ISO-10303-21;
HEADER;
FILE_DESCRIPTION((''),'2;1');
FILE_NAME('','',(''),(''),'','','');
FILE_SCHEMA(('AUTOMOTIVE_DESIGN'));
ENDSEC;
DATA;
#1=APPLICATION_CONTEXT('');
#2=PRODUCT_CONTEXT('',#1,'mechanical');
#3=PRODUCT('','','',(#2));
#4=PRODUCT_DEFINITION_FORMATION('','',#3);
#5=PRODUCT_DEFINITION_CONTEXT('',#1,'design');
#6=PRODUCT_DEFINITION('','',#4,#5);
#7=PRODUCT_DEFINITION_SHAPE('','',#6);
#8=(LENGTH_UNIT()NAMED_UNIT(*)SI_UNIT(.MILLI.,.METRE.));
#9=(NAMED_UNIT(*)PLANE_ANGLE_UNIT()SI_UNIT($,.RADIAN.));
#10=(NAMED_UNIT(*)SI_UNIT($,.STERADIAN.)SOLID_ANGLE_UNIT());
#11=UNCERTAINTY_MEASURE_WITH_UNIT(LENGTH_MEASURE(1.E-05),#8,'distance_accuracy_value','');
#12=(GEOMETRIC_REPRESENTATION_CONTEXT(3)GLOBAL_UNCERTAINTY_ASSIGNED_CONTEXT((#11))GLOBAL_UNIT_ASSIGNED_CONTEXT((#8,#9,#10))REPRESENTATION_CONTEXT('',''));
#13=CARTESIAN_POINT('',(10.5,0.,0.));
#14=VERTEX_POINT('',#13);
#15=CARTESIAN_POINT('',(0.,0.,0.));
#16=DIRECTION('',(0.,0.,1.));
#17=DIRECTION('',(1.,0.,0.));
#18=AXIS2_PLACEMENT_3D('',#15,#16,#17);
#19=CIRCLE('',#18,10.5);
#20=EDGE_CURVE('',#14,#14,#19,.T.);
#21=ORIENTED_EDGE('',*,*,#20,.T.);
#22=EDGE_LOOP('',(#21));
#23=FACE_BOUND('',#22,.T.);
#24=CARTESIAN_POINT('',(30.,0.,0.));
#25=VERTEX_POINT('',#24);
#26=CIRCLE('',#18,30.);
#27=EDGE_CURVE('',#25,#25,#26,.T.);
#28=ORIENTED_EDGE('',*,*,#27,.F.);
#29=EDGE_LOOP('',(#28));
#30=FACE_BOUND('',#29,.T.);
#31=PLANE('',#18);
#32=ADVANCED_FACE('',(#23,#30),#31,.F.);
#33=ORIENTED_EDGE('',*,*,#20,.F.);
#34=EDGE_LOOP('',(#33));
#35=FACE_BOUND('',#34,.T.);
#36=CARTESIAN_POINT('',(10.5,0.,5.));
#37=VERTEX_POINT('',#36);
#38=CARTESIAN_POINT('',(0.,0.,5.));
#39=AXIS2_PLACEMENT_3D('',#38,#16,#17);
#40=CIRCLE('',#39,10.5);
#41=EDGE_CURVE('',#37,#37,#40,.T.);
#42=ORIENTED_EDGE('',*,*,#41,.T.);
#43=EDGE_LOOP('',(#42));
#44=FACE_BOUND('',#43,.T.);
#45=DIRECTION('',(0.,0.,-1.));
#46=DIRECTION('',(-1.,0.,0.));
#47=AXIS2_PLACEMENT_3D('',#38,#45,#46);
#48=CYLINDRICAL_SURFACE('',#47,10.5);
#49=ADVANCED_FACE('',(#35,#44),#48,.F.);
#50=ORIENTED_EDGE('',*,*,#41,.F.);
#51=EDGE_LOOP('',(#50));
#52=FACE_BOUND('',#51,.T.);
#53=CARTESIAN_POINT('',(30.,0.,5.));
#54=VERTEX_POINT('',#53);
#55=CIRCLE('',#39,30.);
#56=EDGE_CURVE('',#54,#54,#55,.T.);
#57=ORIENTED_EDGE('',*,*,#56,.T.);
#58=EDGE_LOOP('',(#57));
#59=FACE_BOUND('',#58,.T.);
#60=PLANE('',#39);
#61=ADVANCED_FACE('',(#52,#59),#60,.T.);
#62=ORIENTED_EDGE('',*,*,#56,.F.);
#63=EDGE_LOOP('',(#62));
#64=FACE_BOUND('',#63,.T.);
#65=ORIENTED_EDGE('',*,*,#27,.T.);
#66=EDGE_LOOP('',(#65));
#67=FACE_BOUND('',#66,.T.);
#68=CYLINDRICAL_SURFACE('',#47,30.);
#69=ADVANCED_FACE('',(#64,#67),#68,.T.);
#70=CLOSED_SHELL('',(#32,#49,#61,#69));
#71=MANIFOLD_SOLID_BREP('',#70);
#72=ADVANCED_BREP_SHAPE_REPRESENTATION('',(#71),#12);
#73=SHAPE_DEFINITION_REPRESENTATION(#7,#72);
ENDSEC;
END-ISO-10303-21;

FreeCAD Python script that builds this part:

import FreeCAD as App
import Part
import Sketcher

doc = App.newDocument("Part")
body = doc.addObject("PartDesign::Body", "Body")

# Sketch on XY plane
sketch1 = body.newObject("Sketcher::SketchObject", "Sketch")
sketch1.AttachmentSupport = (doc.getObject("XY_Plane"), [""])
sketch1.MapMode = "FlatFace"
sketch1.addGeometry([
    Part.Circle(App.Vector(0, 0, 0), App.Vector(0, 0, 1), 30),
    Part.Circle(App.Vector(0, 0, 0), App.Vector(0, 0, 1), 10),
], False)
sketch1.addConstraint([
    Sketcher.Constraint("Coincident", 0, 3, -1, 1),
    Sketcher.Constraint("Coincident", 1, 3, -1, 1),
    Sketcher.Constraint("Diameter", 0, 60.0),
    Sketcher.Constraint("Diameter", 1, 21.0),
])
pad1 = body.newObject("PartDesign::Pad", "Pad")
pad1.Profile = sketch1
pad1.Length = 5

doc.recompute()
